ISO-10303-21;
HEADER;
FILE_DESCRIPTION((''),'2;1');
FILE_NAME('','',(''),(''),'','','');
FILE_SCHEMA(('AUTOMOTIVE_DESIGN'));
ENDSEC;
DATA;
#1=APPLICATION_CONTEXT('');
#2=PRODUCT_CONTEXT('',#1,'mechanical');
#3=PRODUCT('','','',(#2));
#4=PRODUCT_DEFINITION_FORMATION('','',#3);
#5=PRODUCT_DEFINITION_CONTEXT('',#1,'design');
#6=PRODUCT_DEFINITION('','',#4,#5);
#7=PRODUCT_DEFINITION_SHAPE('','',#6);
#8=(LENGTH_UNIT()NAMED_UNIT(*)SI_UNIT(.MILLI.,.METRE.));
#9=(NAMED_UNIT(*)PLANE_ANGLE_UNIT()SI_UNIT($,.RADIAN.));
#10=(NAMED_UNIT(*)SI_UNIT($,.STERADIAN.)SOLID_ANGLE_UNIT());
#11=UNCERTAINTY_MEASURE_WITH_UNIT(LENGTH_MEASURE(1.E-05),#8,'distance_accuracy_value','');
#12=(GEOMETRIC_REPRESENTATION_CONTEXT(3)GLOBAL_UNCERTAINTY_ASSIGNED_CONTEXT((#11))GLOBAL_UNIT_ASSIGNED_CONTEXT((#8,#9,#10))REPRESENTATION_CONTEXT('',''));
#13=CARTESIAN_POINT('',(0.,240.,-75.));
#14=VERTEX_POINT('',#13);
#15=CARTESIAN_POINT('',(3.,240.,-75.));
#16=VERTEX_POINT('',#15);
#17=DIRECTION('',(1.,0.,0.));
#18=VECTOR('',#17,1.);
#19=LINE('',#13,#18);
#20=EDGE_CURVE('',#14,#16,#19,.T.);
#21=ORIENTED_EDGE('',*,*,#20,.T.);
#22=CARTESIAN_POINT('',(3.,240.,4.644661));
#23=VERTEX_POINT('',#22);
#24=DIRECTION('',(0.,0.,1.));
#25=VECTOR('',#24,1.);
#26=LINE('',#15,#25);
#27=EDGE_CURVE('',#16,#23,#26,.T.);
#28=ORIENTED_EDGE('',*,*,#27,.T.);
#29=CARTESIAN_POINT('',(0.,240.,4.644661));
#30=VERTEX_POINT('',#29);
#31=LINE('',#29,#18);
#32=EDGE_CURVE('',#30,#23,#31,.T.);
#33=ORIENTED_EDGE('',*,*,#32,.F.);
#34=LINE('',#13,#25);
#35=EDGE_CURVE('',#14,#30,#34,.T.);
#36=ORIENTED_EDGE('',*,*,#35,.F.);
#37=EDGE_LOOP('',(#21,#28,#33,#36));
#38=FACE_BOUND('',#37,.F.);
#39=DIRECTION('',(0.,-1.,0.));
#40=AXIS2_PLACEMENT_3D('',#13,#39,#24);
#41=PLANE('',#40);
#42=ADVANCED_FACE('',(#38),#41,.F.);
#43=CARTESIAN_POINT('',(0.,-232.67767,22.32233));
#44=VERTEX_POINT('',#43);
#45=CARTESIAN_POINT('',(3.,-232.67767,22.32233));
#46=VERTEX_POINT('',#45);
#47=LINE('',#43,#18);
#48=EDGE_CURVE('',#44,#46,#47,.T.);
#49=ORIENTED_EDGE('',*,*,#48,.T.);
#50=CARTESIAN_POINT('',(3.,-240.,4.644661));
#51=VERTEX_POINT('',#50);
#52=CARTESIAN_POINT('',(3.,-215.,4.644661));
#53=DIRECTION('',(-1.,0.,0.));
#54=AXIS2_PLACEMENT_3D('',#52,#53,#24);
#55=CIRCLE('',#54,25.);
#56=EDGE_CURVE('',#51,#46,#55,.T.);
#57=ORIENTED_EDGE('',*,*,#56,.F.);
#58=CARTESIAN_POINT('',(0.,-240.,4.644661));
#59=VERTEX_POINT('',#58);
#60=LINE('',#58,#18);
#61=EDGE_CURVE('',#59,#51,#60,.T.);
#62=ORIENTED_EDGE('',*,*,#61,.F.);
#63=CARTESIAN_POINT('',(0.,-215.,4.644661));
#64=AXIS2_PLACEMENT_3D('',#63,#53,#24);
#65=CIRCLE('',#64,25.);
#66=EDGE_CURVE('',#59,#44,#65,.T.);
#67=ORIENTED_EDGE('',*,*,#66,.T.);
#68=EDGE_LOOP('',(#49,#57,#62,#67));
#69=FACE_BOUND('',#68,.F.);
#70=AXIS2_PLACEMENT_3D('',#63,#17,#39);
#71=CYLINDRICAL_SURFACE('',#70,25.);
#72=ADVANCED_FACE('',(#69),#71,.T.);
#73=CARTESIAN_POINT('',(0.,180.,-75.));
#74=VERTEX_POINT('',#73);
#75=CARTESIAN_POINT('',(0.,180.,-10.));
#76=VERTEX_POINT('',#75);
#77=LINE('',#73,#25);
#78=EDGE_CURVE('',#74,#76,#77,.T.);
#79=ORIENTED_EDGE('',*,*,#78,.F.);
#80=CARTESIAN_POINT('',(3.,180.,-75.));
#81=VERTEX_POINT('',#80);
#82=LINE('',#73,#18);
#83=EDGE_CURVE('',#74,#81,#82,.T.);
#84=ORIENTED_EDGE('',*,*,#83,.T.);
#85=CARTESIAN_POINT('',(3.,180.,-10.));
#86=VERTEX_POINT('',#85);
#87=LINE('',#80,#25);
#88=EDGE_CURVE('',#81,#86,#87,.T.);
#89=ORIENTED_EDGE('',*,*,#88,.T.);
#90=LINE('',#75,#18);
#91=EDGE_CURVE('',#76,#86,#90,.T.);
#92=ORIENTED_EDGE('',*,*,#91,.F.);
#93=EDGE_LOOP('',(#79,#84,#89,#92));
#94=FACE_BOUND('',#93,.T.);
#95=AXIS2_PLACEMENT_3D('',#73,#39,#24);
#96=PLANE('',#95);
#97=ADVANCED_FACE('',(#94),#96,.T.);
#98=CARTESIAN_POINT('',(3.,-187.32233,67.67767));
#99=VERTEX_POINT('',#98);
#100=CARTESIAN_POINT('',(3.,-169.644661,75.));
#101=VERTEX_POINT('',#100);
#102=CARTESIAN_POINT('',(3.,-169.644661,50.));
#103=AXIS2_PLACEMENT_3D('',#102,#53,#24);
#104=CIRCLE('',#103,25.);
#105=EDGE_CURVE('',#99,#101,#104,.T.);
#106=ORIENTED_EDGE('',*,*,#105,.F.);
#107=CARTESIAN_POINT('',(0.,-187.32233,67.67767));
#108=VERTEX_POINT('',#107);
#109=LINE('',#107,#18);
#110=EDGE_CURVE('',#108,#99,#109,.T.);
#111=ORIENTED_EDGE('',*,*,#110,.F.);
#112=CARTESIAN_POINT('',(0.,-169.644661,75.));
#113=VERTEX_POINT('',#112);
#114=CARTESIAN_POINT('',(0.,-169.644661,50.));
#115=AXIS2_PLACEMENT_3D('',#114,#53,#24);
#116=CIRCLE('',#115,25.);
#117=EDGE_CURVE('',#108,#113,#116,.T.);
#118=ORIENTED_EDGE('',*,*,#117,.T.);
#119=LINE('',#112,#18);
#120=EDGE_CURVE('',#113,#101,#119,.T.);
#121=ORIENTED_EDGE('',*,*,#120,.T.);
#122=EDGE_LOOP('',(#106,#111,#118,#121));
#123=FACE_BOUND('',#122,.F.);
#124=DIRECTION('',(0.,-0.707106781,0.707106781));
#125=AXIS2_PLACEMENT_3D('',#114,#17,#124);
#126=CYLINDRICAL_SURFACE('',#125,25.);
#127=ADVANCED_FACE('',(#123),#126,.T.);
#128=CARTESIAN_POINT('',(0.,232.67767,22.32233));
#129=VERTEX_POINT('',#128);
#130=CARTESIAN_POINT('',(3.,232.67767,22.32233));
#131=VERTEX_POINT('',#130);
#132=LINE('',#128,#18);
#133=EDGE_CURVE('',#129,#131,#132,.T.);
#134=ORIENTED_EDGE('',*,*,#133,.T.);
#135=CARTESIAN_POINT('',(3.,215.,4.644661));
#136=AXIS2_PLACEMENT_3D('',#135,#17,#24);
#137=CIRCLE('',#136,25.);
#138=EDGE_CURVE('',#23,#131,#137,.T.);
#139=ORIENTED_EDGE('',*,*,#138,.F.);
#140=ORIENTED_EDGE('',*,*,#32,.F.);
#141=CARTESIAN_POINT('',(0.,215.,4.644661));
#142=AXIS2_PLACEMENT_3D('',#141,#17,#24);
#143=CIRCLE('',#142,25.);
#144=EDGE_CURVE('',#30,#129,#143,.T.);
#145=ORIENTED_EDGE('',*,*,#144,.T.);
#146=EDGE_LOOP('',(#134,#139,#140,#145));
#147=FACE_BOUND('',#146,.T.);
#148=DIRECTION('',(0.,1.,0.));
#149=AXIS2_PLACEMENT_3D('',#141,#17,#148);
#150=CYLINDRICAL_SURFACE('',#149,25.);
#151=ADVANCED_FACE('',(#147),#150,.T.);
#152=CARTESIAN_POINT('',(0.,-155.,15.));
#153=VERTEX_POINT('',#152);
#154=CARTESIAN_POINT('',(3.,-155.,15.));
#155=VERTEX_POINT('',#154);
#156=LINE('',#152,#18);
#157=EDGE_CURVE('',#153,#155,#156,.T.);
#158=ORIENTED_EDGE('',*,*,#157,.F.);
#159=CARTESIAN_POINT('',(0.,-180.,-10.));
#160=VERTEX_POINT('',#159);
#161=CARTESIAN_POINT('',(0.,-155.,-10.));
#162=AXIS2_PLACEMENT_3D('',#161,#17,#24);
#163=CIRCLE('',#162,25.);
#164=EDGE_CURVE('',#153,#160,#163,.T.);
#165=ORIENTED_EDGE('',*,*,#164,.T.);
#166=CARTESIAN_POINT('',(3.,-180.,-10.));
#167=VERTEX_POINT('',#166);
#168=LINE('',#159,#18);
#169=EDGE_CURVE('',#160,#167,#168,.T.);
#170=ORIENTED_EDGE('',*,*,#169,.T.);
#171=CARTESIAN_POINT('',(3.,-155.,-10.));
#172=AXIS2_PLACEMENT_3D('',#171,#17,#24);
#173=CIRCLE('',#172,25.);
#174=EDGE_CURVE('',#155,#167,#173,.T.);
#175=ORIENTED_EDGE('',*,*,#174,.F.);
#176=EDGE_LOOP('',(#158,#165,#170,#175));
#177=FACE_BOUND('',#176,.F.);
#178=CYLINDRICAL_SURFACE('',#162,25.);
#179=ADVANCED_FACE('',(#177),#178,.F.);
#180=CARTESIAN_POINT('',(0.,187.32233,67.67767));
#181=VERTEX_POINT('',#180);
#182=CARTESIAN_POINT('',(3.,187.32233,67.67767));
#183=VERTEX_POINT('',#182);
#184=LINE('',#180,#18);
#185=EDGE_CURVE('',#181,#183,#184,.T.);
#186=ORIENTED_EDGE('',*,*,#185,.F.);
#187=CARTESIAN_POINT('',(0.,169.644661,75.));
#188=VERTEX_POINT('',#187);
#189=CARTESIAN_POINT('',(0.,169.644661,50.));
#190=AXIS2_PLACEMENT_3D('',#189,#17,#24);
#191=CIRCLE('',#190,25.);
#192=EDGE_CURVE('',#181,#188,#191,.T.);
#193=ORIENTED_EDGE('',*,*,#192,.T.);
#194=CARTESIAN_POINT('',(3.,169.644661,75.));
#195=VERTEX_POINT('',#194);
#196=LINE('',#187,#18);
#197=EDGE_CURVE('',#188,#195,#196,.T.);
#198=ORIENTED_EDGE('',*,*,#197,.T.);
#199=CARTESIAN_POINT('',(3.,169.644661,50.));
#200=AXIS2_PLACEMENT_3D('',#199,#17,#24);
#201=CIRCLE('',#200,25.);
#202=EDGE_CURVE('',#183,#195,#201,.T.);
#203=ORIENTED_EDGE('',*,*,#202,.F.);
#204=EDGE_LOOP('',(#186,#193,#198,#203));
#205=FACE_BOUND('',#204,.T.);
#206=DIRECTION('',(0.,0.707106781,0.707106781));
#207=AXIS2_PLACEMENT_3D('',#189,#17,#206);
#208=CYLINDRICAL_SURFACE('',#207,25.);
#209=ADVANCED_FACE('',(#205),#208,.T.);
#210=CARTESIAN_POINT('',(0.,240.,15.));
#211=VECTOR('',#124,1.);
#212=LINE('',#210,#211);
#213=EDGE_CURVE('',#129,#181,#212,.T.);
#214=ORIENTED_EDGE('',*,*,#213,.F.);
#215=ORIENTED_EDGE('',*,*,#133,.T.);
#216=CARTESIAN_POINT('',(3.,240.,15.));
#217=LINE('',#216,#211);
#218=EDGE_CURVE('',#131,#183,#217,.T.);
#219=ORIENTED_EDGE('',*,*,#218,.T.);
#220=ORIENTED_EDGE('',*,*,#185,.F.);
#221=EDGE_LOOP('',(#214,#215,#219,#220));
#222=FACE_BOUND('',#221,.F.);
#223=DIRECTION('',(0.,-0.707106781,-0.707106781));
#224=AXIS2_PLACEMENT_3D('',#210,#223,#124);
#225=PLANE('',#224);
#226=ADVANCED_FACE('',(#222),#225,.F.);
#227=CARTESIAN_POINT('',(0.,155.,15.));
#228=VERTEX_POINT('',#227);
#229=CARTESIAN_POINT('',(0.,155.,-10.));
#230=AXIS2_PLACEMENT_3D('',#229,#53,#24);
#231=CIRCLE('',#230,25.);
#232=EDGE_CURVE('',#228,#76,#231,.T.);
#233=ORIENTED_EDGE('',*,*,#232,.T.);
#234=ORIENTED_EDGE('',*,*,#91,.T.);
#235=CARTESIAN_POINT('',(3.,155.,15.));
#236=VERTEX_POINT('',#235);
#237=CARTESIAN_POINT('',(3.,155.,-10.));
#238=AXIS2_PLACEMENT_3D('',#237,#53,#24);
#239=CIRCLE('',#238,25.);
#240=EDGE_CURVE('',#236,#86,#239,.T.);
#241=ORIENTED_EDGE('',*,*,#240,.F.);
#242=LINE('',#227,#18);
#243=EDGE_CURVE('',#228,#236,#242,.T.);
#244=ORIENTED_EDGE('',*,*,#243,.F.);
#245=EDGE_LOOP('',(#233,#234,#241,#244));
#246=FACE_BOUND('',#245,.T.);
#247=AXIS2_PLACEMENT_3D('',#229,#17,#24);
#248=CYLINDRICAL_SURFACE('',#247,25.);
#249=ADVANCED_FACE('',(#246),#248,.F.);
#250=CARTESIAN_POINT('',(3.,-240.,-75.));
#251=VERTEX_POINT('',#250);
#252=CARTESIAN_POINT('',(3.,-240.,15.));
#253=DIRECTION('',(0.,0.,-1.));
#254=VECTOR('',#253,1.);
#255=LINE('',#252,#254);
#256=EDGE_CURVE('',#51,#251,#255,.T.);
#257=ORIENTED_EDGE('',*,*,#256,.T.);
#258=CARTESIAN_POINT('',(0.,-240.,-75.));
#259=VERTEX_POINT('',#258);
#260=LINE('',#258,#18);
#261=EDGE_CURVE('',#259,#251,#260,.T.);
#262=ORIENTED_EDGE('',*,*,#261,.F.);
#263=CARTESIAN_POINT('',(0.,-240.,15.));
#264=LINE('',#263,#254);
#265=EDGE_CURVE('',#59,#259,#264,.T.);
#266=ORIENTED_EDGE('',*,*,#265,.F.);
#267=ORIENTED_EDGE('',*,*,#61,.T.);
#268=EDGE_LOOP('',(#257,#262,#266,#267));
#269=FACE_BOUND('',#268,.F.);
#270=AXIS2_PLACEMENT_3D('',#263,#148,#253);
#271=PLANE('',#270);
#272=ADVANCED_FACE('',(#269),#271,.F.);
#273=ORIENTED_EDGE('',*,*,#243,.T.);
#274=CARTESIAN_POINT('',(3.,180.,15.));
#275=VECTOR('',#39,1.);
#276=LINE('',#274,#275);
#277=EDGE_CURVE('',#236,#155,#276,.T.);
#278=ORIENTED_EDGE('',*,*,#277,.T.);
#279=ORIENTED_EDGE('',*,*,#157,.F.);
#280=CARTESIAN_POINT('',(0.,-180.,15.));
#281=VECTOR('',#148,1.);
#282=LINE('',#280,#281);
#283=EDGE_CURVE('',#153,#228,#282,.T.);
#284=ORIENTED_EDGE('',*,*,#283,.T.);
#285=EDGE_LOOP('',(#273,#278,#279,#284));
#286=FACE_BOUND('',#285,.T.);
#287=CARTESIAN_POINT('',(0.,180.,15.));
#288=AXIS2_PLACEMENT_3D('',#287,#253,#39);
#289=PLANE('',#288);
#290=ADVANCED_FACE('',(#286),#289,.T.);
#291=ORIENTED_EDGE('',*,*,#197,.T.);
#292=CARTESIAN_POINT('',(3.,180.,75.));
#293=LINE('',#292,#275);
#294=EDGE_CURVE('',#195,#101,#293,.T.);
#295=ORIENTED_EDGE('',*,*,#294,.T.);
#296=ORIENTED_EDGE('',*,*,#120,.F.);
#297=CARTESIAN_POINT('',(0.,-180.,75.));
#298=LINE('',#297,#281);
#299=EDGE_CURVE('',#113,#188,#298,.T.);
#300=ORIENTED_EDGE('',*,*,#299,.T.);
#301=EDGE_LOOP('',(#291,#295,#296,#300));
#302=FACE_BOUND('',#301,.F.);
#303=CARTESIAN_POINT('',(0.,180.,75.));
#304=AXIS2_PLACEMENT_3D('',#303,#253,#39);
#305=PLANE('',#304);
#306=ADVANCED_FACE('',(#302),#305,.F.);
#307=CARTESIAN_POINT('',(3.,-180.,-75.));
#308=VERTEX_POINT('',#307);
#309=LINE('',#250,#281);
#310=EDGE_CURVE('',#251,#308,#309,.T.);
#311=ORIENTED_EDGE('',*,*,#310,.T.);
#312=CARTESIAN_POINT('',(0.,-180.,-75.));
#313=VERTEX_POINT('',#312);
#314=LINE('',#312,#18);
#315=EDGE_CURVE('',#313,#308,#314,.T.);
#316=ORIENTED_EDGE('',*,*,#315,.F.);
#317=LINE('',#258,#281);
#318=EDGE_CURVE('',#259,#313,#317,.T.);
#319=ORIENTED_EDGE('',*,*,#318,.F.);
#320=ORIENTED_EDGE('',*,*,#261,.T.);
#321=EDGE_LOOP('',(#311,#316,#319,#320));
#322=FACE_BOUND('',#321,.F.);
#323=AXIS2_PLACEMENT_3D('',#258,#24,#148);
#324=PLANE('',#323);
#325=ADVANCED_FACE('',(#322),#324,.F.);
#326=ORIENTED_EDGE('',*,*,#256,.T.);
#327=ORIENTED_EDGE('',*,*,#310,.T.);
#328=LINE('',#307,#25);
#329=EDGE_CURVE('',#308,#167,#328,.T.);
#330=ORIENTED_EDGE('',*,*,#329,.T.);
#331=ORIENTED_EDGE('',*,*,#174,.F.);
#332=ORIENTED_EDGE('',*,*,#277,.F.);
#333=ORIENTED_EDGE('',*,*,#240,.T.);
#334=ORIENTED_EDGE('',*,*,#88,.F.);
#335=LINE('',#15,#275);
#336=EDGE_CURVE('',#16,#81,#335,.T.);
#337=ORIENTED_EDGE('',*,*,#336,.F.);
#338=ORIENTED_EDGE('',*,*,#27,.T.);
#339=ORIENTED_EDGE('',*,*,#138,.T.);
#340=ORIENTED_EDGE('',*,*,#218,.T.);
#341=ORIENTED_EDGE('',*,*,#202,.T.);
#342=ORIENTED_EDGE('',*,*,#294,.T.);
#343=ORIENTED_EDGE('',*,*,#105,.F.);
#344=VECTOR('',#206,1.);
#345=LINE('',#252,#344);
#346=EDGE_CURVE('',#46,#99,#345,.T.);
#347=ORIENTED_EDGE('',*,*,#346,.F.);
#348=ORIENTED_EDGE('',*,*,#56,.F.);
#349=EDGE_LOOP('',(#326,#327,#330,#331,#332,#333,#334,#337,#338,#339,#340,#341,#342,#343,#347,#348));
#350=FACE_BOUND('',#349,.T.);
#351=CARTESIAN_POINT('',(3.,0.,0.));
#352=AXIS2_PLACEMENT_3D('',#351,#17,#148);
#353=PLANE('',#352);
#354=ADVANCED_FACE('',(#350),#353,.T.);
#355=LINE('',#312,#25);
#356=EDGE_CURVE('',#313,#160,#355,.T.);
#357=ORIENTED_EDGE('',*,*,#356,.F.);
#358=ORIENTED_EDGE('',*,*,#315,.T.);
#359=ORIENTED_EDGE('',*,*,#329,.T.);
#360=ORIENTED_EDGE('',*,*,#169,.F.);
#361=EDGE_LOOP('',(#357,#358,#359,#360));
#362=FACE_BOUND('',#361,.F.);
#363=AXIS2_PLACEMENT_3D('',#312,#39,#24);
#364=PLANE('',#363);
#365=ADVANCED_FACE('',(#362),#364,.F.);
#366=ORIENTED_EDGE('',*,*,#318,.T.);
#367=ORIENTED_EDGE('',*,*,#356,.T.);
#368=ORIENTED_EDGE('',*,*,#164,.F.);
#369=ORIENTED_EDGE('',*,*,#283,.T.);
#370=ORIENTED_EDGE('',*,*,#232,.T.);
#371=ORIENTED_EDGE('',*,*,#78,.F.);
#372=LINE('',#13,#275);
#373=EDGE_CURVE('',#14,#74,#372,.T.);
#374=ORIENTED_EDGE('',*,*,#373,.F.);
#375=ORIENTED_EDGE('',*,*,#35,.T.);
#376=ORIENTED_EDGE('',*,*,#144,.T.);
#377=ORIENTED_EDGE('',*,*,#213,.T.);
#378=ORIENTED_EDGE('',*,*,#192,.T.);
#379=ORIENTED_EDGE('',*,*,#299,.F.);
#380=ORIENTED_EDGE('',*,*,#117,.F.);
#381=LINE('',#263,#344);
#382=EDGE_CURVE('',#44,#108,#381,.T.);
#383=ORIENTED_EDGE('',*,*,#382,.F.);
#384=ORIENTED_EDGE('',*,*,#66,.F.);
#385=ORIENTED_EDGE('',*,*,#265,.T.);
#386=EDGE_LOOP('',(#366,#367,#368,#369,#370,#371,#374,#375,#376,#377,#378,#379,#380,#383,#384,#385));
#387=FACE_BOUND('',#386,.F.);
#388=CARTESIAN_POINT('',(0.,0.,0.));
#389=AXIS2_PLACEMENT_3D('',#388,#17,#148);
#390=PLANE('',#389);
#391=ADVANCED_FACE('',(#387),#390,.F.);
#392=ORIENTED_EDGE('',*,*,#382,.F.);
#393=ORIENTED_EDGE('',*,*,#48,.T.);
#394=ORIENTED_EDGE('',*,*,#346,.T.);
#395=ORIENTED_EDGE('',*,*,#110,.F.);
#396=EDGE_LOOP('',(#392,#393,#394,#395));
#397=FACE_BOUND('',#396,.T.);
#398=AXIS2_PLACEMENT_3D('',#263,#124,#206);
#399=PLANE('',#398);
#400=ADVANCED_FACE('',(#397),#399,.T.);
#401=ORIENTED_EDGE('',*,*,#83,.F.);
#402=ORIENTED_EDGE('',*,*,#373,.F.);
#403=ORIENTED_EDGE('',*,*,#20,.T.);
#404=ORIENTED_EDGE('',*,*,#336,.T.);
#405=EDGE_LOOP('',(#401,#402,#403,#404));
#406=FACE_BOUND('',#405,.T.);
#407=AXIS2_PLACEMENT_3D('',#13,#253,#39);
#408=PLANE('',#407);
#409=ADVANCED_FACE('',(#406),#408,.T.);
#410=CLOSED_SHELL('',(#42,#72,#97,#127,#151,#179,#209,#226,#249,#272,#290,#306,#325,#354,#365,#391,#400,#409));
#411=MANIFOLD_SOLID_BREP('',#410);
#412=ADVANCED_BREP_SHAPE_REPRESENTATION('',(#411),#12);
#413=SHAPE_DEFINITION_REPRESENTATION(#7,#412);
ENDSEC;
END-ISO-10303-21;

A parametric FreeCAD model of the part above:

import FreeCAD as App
import Part
import Sketcher


def edges_at(feature, points):
    """Names of the edges that pass closest to the given points."""
    edges = feature.Shape.Edges
    near = lambda p: min(range(len(edges)), key=lambda i: edges[i].distToShape(Part.Vertex(*p))[0])
    return sorted({f"Edge{near(p) + 1}" for p in points})


def add_polygon(sketch, points):
    """Adds a closed chain of lines whose ends are joined by coincident constraints."""
    first, n = sketch.GeometryCount, len(points)
    for a, b in zip(points, points[1:] + points[:1]):
        sketch.addGeometry(Part.LineSegment(App.Vector(*a, 0), App.Vector(*b, 0)), False)
    for i in range(n):
        sketch.addConstraint(Sketcher.Constraint("Coincident", first + i, 2, first + (i + 1) % n, 1))

doc = App.newDocument("Part")
body = doc.addObject("PartDesign::Body", "Body")

sketch1 = body.newObject("Sketcher::SketchObject", "Sketch")
sketch1.AttachmentSupport = (doc.getObject("YZ_Plane"), [""])
sketch1.MapMode = "FlatFace"
add_polygon(sketch1, [(180, 15), (180, -75), (240, -75), (240, 15), (180, 75), (-180, 75), (-240, 15), (-240, -75), (-180, -75), (-180, 15)])
sketch1.addConstraint([
    Sketcher.Constraint("Vertical", 0),
    Sketcher.Constraint("Horizontal", 1),
    Sketcher.Constraint("Vertical", 2),
    Sketcher.Constraint("Horizontal", 4),
    Sketcher.Constraint("Vertical", 6),
    Sketcher.Constraint("Horizontal", 7),
    Sketcher.Constraint("Vertical", 8),
    Sketcher.Constraint("Horizontal", 9),
    Sketcher.Constraint("Symmetric", 0, 2, 4, 2, -1, 1),
    Sketcher.Constraint("Symmetric", 3, 2, 7, 2, -1, 1),
    Sketcher.Constraint("Symmetric", 2, 2, 5, 2, -2),
    Sketcher.Constraint("Perpendicular", 3, 5),
    Sketcher.Constraint("Horizontal", 5, 2, 8, 2),
    Sketcher.Constraint("Vertical", 0, 2, 3, 2),
    Sketcher.Constraint("DistanceX", 1, 1, 1, 2, 60.0),
    Sketcher.Constraint("DistanceX", 5, 2, 2, 2, 480.0),
    Sketcher.Constraint("DistanceY", 0, 2, 0, 1, 90.0),
])
pad1 = body.newObject("PartDesign::Pad", "Pad")
pad1.Profile = sketch1
pad1.Length = 3
doc.recompute()

fillet = body.newObject("PartDesign::Fillet", "Fillet")
fillet.Base = (pad1, edges_at(pad1, [(1.5, -180, 15), (1.5, 180, 15)]))
fillet.Radius = 25
doc.recompute()

fillet2 = body.newObject("PartDesign::Fillet", "Fillet001")
fillet2.Base = (fillet, edges_at(fillet, [
    (1.5, -240, 15),
    (1.5, -180, 75),
    (1.5, 180, 75),
    (1.5, 240, 15),
]))
fillet2.Radius = 25

doc.recompute()
